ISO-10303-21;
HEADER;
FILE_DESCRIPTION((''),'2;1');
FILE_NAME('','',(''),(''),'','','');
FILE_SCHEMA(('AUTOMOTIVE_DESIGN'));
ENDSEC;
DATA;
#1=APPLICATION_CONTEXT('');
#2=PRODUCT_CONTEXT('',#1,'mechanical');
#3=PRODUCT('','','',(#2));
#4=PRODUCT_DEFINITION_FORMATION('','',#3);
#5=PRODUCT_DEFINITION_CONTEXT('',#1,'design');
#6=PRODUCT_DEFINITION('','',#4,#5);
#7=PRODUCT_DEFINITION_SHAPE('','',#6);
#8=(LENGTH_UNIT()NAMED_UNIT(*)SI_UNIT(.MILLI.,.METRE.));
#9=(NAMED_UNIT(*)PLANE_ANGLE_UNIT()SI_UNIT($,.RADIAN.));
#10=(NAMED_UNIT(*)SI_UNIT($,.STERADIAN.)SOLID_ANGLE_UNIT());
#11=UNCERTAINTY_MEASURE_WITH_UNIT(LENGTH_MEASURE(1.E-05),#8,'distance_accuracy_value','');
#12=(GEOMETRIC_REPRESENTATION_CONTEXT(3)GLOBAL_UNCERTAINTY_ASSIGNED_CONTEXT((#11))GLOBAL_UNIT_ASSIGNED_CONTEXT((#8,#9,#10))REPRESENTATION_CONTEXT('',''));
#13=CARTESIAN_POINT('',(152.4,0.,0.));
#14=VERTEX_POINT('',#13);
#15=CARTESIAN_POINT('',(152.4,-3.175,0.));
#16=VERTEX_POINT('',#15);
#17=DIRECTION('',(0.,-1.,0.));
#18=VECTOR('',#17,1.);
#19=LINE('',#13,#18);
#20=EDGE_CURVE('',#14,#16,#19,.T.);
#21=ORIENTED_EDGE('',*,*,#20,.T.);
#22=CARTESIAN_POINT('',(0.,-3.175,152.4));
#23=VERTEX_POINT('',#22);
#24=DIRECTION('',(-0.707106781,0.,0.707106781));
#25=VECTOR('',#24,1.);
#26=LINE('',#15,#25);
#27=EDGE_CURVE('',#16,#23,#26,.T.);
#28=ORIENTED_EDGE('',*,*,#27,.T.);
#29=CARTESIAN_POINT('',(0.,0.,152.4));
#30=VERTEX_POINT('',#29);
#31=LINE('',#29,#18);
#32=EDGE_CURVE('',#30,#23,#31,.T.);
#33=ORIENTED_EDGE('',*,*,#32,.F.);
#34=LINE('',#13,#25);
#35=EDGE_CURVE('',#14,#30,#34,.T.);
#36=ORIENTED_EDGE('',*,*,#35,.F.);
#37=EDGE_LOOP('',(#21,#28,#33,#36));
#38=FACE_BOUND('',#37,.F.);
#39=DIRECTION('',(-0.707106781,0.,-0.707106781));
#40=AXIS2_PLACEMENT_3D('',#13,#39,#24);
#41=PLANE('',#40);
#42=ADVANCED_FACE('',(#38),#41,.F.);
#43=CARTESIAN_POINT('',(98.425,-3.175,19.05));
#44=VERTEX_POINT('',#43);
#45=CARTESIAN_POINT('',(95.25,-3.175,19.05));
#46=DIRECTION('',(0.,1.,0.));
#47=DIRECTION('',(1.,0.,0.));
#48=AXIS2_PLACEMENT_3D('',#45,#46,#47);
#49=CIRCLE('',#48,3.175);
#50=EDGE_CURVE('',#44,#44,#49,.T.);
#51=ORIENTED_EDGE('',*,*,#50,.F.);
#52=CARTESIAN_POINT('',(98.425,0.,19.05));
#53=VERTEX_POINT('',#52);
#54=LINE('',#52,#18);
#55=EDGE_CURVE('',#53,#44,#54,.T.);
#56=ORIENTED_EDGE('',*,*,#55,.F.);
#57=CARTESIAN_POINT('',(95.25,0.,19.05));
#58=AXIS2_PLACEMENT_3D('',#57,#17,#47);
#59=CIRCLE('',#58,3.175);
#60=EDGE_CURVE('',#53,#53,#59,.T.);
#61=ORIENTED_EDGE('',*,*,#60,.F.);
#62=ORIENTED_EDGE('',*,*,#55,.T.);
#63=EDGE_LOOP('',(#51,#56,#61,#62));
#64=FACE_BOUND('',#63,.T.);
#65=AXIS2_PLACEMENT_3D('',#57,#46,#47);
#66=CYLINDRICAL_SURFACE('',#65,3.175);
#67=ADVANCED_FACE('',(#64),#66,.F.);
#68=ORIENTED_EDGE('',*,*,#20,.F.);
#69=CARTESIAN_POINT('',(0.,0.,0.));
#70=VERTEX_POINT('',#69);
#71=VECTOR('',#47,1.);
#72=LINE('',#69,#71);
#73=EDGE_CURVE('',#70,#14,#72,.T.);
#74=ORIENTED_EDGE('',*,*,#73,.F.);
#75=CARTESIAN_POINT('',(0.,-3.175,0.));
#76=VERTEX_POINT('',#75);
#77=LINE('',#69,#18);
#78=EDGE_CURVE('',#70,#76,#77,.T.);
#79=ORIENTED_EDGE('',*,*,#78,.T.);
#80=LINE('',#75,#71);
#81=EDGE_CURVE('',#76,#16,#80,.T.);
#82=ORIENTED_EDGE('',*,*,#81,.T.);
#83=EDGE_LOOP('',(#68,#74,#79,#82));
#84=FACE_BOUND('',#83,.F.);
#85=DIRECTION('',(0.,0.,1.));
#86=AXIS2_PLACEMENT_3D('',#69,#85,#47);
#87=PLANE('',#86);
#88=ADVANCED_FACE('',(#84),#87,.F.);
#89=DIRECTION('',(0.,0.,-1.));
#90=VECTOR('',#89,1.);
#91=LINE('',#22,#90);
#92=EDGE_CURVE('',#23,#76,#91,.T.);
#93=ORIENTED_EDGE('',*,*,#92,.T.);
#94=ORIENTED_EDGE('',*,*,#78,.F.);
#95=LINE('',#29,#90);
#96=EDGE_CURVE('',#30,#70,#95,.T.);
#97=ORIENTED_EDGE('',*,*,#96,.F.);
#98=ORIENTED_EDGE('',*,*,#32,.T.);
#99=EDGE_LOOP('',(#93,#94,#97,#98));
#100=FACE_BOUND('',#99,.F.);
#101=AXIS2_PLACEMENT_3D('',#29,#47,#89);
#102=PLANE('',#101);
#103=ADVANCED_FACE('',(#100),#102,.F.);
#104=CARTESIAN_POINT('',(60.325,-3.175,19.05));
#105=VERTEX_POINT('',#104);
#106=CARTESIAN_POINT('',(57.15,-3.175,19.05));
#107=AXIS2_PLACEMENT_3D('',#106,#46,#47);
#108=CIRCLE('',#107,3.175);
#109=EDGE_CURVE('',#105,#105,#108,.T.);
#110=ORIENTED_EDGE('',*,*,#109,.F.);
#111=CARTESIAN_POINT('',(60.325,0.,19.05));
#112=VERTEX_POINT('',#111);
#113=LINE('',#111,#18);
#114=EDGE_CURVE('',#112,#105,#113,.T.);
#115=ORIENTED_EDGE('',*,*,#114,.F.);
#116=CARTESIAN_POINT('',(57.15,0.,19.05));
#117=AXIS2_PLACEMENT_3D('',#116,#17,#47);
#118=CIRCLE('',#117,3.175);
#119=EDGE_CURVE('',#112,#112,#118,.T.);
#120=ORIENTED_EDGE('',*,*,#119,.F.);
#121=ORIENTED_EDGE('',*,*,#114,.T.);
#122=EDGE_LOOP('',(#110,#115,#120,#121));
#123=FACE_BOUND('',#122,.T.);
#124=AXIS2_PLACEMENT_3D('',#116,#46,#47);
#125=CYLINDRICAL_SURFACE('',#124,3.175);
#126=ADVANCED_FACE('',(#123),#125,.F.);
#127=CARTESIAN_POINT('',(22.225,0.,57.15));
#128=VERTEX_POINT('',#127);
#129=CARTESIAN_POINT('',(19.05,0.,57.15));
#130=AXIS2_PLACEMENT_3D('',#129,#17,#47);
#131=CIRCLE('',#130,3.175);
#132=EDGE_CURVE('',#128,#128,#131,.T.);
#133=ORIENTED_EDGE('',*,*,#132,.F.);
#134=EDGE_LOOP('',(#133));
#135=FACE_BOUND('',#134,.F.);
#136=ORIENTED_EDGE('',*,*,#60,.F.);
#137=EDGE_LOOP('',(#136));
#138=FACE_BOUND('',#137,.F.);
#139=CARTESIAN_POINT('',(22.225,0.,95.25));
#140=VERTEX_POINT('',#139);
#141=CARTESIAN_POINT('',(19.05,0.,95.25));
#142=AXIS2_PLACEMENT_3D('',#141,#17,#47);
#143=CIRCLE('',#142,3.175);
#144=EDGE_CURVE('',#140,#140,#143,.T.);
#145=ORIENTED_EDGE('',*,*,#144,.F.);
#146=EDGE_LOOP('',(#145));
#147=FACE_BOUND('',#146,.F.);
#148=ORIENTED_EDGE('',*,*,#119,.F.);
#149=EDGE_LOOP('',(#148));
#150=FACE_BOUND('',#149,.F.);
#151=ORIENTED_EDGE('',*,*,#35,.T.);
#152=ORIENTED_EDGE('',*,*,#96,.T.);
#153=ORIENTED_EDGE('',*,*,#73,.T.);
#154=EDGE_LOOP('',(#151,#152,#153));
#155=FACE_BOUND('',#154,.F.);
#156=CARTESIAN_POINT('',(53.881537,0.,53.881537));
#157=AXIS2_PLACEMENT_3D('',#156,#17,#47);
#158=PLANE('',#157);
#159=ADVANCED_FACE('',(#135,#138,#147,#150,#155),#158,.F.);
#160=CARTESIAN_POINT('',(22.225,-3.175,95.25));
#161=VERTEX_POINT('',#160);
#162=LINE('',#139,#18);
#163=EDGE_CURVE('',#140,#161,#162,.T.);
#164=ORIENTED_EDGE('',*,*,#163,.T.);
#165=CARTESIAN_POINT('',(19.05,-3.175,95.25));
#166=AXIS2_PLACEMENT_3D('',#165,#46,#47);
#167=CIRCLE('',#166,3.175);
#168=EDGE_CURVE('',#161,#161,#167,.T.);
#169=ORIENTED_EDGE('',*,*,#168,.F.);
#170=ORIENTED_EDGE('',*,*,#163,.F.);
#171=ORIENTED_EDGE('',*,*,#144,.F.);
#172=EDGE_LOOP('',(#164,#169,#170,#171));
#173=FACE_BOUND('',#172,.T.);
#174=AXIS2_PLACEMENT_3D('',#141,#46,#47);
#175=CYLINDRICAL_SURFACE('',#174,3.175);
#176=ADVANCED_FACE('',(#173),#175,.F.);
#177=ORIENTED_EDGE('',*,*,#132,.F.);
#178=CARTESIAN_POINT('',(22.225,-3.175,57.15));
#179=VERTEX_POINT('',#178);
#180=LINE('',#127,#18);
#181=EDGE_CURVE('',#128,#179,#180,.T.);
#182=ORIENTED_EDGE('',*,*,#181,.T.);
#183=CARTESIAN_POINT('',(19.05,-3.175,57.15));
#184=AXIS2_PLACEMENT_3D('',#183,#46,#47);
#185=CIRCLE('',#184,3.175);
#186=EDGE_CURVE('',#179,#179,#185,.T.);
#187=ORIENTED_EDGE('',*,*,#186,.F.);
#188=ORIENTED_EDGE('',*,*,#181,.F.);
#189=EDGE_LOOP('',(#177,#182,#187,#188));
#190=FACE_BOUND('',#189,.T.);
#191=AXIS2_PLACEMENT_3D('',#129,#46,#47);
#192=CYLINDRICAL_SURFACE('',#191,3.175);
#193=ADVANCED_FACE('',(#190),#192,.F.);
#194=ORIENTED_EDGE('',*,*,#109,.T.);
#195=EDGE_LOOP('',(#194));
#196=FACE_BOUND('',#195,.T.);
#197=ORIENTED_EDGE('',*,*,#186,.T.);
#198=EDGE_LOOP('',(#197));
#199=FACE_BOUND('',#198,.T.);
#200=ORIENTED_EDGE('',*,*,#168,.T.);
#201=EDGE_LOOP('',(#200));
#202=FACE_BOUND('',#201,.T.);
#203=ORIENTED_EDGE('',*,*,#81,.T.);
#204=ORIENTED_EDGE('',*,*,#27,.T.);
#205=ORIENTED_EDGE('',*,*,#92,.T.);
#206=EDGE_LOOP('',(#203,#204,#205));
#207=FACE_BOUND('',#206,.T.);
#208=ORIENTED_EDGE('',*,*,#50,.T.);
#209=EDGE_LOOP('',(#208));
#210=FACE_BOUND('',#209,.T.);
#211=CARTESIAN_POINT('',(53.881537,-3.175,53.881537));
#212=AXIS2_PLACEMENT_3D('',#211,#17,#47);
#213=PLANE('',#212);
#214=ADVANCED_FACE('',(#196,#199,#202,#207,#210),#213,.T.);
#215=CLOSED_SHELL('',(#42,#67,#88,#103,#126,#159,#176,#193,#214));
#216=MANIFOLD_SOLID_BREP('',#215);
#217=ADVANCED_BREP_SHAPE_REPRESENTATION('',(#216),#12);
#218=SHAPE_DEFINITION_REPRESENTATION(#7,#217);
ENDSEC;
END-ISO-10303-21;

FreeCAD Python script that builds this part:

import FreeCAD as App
import Part
import Sketcher
Q = App.Units.Quantity

doc = App.newDocument("Part")
body = doc.addObject("PartDesign::Body", "Body")

sketch1 = body.newObject("Sketcher::SketchObject", "Sketch")
sketch1.AttachmentSupport = (doc.getObject("XZ_Plane"), [""])
sketch1.MapMode = "FlatFace"
sketch1.addGeometry(Part.LineSegment(App.Vector(0, 152, 0), App.Vector(0, 0, 0)), False)
sketch1.addGeometry(Part.LineSegment(App.Vector(0, 0, 0), App.Vector(152, 0, 0)), False)
sketch1.addGeometry(Part.LineSegment(App.Vector(152, 0, 0), App.Vector(0, 152, 0)), False)
sketch1.addConstraint(Sketcher.Constraint("Coincident", 0, 2, 1, 1))
sketch1.addConstraint(Sketcher.Constraint("Coincident", 1, 2, 2, 1))
sketch1.addConstraint(Sketcher.Constraint("Coincident", 2, 2, 0, 1))
sketch1.addConstraint(Sketcher.Constraint("Vertical", 0))
sketch1.addConstraint(Sketcher.Constraint("Horizontal", 1))
sketch1.addConstraint(Sketcher.Constraint("Coincident", 0, 2, -1, 1))
sketch1.addConstraint(Sketcher.Constraint("Equal", 1, 0))
sketch1.addConstraint(Sketcher.Constraint("DistanceX", 1, 1, 1, 2, Q("6 in")))
pad1 = body.newObject("PartDesign::Pad", "Pad")
pad1.Profile = sketch1
pad1.Length = Q("0.125 in")

sketch2 = body.newObject("Sketcher::SketchObject", "Sketch001")
sketch2.AttachmentSupport = (doc.getObject("XZ_Plane"), [""])
sketch2.MapMode = "FlatFace"
sketch2.addGeometry(Part.Circle(App.Vector(19.1, 57.1, 0), App.Vector(0, 0, 1), 3.2), False)
sketch2.addGeometry(Part.Circle(App.Vector(19.1, 95.2, 0), App.Vector(0, 0, 1), 3.2), False)
sketch2.addGeometry(Part.Circle(App.Vector(57.1, 19.1, 0), App.Vector(0, 0, 1), 3.2), False)
sketch2.addGeometry(Part.Circle(App.Vector(95.2, 19.1, 0), App.Vector(0, 0, 1), 3.2), False)
sketch2.addConstraint(Sketcher.Constraint("Equal", 0, 1))
sketch2.addConstraint(Sketcher.Constraint("Equal", 1, 2))
sketch2.addConstraint(Sketcher.Constraint("Equal", 2, 3))
sketch2.addConstraint(Sketcher.Constraint("Horizontal", 2, 3, 3, 3))
sketch2.addConstraint(Sketcher.Constraint("Vertical", 0, 3, 1, 3))
sketch2.addConstraint(Sketcher.Constraint("Diameter", 0, Q("0.25 in")))
sketch2.addConstraint(Sketcher.Constraint("DistanceY", 2, 3, 1, 3, Q("3 in")))
sketch2.addConstraint(Sketcher.Constraint("DistanceX", 0, 3, 3, 3, Q("3 in")))
sketch2.addConstraint(Sketcher.Constraint("DistanceY", 0, 3, 1, 3, Q("1.5 in")))
sketch2.addConstraint(Sketcher.Constraint("DistanceX", 0, 3, 2, 3, Q("1.5 in")))
sketch2.addConstraint(Sketcher.Constraint("DistanceX", -1, 1, 0, 3, Q("0.75 in")))
sketch2.addConstraint(Sketcher.Constraint("DistanceY", -1, 1, 0, 3, Q("2.25 in")))
pocket1 = body.newObject("PartDesign::Pocket", "Pocket")
pocket1.Profile = sketch2
pocket1.Length = Q("3 in")
pocket1.Reversed = True

doc.recompute()
